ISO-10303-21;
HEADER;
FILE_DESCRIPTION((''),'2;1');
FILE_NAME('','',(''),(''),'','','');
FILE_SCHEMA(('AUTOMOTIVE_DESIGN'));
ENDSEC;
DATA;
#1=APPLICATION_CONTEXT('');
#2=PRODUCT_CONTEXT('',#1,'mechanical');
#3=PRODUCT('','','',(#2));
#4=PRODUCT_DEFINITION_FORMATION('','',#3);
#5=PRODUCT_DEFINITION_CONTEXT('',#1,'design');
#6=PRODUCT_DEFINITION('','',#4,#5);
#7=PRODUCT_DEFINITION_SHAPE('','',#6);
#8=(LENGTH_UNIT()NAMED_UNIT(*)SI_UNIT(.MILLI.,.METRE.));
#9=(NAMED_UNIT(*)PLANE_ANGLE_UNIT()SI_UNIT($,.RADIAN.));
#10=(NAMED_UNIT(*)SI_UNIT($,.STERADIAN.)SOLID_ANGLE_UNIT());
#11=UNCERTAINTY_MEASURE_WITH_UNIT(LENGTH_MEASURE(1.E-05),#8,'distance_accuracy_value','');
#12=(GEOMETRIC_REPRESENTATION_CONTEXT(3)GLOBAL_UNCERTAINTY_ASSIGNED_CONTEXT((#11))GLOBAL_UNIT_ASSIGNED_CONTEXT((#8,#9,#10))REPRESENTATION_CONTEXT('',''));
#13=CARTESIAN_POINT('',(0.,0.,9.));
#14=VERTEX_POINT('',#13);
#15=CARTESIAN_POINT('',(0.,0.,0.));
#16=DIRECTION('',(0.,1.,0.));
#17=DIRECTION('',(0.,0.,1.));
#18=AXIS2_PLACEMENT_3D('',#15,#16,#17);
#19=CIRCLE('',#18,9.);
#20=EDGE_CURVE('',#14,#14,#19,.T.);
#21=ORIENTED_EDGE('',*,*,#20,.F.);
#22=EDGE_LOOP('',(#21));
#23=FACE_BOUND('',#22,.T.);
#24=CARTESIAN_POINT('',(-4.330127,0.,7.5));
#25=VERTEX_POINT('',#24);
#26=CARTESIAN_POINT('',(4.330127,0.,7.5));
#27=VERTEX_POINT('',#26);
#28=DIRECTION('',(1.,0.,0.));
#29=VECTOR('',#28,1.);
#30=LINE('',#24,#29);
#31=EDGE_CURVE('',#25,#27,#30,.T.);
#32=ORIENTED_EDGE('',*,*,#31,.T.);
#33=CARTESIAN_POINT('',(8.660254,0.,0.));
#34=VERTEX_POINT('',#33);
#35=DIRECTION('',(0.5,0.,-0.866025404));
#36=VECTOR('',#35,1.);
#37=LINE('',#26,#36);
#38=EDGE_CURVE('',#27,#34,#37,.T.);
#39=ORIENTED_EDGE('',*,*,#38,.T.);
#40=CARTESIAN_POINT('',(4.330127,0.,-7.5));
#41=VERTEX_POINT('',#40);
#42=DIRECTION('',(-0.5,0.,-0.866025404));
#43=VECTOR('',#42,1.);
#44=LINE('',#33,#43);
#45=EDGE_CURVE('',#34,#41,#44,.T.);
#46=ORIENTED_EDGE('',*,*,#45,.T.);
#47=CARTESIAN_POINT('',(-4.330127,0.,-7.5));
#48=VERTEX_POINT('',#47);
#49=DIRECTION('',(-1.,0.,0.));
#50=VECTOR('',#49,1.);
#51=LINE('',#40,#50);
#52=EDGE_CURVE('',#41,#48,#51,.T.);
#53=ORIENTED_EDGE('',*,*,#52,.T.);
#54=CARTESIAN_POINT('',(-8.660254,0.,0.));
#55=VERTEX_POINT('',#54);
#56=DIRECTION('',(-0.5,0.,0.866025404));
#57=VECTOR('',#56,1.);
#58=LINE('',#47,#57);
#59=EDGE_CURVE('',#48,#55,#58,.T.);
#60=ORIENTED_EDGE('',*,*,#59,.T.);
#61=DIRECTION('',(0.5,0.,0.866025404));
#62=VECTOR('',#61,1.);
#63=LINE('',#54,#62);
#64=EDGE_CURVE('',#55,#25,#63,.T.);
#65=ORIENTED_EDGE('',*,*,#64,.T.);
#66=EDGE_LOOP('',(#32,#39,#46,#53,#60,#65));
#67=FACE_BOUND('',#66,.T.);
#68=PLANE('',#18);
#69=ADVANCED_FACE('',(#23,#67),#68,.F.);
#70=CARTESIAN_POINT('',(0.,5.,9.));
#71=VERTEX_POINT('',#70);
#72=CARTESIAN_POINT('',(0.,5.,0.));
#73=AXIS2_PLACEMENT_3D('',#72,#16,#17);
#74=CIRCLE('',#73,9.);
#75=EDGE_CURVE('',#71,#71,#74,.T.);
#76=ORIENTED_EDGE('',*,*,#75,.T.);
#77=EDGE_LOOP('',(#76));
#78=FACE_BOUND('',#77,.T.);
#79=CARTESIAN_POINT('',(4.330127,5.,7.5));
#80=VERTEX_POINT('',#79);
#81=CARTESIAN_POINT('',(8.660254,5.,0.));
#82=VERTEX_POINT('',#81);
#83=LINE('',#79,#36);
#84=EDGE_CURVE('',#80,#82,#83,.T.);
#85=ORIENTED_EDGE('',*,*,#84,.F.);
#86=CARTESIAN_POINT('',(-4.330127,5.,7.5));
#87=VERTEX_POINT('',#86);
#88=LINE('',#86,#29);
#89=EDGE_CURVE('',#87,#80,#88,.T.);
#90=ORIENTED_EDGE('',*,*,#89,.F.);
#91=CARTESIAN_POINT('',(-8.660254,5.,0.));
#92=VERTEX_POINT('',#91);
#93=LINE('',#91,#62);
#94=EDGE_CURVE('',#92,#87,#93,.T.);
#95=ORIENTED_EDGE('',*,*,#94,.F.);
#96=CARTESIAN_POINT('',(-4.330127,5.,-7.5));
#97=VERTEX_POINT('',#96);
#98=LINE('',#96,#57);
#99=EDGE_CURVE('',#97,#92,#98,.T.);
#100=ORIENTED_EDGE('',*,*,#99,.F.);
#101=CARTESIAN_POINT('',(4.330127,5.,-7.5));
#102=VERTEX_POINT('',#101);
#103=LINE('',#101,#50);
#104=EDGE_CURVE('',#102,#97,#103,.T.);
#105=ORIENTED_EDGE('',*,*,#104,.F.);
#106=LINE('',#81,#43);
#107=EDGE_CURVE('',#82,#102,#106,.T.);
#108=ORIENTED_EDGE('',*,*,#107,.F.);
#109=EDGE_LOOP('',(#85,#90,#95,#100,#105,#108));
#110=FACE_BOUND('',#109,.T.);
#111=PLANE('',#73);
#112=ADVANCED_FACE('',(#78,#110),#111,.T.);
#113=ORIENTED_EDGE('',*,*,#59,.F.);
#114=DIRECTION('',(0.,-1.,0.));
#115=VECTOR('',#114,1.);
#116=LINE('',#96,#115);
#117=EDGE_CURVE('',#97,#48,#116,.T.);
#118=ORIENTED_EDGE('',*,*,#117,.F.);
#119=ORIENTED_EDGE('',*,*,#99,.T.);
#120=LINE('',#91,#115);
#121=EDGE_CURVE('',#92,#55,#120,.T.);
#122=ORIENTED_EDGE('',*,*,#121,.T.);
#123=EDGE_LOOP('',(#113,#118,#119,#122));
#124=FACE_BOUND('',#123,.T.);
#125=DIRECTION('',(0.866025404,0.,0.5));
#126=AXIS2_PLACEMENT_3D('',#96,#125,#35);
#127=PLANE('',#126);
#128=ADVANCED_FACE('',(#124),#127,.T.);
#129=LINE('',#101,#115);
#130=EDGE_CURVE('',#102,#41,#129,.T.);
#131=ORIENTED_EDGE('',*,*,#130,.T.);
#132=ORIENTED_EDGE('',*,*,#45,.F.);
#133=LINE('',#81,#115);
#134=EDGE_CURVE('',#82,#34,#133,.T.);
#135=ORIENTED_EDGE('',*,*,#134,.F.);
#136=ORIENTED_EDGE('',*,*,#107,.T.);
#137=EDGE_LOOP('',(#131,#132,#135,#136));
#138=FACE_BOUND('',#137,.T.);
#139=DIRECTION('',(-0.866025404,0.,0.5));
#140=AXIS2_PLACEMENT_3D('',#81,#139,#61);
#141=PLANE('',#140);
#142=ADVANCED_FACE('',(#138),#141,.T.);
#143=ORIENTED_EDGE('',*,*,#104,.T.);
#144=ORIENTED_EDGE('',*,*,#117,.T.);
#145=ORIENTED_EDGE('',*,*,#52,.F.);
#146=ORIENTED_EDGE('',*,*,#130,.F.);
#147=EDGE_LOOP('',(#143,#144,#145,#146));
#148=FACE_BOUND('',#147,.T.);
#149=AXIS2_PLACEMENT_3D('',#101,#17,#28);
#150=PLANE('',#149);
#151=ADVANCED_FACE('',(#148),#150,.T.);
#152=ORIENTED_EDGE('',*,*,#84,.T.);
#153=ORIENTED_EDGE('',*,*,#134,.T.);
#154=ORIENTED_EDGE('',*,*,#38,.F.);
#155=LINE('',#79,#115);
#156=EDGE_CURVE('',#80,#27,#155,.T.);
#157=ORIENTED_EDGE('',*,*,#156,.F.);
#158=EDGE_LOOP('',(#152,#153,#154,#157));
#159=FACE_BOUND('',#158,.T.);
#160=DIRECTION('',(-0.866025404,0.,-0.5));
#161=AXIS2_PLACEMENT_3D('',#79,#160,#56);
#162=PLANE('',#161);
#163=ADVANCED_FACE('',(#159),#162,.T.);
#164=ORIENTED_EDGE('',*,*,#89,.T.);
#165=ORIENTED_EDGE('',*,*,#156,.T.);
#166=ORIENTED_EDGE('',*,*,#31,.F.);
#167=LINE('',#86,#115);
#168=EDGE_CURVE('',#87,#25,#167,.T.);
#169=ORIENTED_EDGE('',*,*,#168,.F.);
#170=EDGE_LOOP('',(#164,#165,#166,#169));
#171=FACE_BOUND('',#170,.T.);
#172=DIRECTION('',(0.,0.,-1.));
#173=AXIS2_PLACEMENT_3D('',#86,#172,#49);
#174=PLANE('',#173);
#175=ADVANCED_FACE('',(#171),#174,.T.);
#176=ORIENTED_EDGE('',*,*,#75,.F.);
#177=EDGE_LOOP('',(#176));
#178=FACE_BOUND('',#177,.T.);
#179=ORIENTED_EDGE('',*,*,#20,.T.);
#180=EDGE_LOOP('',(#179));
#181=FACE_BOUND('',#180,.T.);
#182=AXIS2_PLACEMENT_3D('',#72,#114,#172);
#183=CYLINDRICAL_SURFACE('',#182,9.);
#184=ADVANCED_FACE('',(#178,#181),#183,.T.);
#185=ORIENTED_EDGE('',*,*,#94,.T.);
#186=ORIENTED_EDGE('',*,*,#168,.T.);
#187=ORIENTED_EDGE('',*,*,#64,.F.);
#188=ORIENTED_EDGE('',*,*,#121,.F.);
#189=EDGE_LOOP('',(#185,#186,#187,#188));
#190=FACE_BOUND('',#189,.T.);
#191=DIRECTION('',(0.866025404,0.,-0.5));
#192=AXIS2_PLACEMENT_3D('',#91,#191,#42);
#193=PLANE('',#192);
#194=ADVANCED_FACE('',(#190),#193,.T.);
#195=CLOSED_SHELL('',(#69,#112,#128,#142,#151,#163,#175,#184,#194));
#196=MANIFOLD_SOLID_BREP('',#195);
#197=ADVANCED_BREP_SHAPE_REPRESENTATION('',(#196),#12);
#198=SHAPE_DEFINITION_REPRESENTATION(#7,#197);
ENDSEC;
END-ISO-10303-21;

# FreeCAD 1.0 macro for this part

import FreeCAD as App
import Part
import Sketcher

V = App.Vector
Q = App.Units.Quantity

doc = App.newDocument("Part")
body = doc.addObject("PartDesign::Body", "Body")

# Sketch on XZ plane
sketch1 = doc.addObject("Sketcher::SketchObject", "Sketch")
body.addObject(sketch1)
sketch1.AttachmentSupport = (doc.XZ_Plane, [""])
sketch1.MapMode = "FlatFace"
sketch1.addGeometry(Part.Circle(V(0, 0, 0), V(0, 0, 1), 9), False)
sketch1.addGeometry(Part.LineSegment(V(4.330127, -7.5, 0), V(8.660254, 0, 0)), False)
sketch1.addGeometry(Part.LineSegment(V(8.660254, 0, 0), V(4.330127, 7.5, 0)), False)
sketch1.addGeometry(Part.LineSegment(V(4.330127, 7.5, 0), V(-4.330127, 7.5, 0)), False)
sketch1.addGeometry(Part.LineSegment(V(-4.330127, 7.5, 0), V(-8.660254, 0, 0)), False)
sketch1.addGeometry(Part.LineSegment(V(-8.660254, 0, 0), V(-4.330127, -7.5, 0)), False)
sketch1.addGeometry(Part.LineSegment(V(-4.330127, -7.5, 0), V(4.330127, -7.5, 0)), False)
sketch1.addConstraint(Sketcher.Constraint("Coincident", 1, 2, 2, 1))
sketch1.addConstraint(Sketcher.Constraint("Coincident", 2, 2, 3, 1))
sketch1.addConstraint(Sketcher.Constraint("Coincident", 3, 2, 4, 1))
sketch1.addConstraint(Sketcher.Constraint("Coincident", 4, 2, 5, 1))
sketch1.addConstraint(Sketcher.Constraint("Coincident", 5, 2, 6, 1))
sketch1.addConstraint(Sketcher.Constraint("Coincident", 6, 2, 1, 1))
sketch1.addConstraint(Sketcher.Constraint("Horizontal", 3))
sketch1.addConstraint(Sketcher.Constraint("Horizontal", 6))
sketch1.addConstraint(Sketcher.Constraint("Coincident", 0, 3, -1, 1))
sketch1.addConstraint(Sketcher.Constraint("Symmetric", 1, 2, 4, 2, -1, 1))
sketch1.addConstraint(Sketcher.Constraint("Symmetric", 2, 2, 5, 2, -1, 1))
sketch1.addConstraint(Sketcher.Constraint("PointOnObject", 1, 2, -1))
sketch1.addConstraint(Sketcher.Constraint("Parallel", 1, 4))
sketch1.addConstraint(Sketcher.Constraint("Vertical", 3, 2, 5, 2))
sketch1.addConstraint(Sketcher.Constraint("Diameter", 0, 18.0))
sketch1.addConstraint(Sketcher.Constraint("Angle", 1, Q("60 deg")))
sketch1.addConstraint(Sketcher.Constraint("DistanceY", 5, 2, 3, 2, 15.0))
sketch1.addConstraint(Sketcher.Constraint("DistanceX", 3, 2, 3, 1, 8.660254))
pad1 = doc.addObject("PartDesign::Pad", "Pad")
body.addObject(pad1)
pad1.Profile = sketch1
pad1.Length = 5
pad1.Reversed = True

doc.recompute()
